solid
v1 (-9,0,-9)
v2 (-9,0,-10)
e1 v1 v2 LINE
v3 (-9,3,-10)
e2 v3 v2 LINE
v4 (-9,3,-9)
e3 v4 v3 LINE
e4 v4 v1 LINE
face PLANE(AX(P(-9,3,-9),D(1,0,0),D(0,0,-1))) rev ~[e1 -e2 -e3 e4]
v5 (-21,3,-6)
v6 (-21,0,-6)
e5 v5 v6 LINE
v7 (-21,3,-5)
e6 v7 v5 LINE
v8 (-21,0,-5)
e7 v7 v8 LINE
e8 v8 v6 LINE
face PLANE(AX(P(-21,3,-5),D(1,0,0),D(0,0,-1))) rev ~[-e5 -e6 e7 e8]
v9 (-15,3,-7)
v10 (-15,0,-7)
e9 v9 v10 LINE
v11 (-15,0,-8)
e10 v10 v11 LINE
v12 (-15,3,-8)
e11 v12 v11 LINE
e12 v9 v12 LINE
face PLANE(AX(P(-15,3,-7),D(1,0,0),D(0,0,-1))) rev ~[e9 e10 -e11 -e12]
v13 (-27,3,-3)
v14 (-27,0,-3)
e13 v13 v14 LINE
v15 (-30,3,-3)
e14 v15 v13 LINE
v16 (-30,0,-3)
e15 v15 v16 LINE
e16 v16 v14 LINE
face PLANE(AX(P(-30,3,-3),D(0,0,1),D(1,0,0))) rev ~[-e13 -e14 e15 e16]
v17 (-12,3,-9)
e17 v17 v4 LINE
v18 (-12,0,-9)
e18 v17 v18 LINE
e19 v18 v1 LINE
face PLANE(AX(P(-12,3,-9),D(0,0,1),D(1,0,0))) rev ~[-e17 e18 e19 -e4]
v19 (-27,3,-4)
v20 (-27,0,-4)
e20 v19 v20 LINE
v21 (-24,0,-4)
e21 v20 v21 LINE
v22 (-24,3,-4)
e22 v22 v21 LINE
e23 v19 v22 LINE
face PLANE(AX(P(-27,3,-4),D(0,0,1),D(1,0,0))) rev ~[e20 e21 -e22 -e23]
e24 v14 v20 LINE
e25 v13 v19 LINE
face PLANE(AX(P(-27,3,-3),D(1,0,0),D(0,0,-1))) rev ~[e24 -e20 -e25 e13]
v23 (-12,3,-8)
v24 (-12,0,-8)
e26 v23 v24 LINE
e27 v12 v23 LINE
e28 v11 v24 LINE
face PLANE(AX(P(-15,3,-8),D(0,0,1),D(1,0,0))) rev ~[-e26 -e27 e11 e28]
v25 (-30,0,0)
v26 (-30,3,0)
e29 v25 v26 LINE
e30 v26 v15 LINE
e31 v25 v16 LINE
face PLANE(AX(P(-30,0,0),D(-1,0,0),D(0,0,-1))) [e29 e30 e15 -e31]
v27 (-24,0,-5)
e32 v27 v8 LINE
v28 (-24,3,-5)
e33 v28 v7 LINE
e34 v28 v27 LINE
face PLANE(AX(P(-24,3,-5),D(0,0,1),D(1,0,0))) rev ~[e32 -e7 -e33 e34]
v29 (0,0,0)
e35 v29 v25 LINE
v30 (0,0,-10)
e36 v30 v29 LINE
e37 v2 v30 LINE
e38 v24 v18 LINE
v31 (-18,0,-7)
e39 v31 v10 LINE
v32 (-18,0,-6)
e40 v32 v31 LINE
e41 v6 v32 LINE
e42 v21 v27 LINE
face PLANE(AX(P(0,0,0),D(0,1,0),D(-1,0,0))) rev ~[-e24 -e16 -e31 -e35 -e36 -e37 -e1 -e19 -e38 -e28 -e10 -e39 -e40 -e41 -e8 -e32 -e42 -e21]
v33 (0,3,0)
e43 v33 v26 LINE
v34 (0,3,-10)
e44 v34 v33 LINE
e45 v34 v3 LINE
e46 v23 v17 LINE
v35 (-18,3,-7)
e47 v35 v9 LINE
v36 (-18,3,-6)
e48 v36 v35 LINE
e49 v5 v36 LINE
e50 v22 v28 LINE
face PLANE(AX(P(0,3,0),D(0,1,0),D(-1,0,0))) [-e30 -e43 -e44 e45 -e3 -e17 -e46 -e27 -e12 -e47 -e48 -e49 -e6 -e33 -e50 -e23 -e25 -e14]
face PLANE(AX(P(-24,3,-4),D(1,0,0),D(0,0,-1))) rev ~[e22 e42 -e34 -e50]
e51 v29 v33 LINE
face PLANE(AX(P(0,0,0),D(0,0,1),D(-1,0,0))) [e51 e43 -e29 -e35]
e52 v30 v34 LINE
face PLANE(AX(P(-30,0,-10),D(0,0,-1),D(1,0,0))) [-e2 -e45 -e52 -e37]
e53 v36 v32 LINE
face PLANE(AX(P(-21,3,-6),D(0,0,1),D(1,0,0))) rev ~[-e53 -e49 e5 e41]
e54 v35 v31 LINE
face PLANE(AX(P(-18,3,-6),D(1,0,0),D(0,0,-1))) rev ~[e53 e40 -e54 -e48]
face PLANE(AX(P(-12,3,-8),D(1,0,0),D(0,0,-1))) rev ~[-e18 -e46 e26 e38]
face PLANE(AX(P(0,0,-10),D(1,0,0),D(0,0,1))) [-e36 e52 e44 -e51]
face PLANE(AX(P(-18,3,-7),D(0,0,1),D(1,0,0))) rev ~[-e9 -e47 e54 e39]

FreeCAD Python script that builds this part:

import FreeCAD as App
import Part
import Sketcher
from FreeCAD import Vector
Q = App.Units.Quantity

doc = App.newDocument("Part")
params = doc.addObject("Spreadsheet::Sheet", "Params")
for row, (alias, value) in enumerate([
    ("sketch1_width", "30 mm"),
    ("sketch1_height", "10 mm"),
    ("pad1_length", "3 mm"),
    ("sketch2_width", "3 mm"),
    ("sketch2_height", "1 mm"),
    ("sketch2_height2", "10 mm"),
], start=1):
    params.set(f"A{row}", alias)
    params.set(f"B{row}", "=" + value)
    params.setAlias(f"B{row}", alias)

body = doc.addObject("PartDesign::Body", "Body")

# Sketch on XZ plane
sketch1 = body.newObject("Sketcher::SketchObject", "Sketch")
sketch1.AttachmentSupport = (doc.getObject("XZ_Plane"), [""])
sketch1.MapMode = "FlatFace"
sketch1.addGeometry(Part.LineSegment(Vector(-30, 0, 0), Vector(0, 0, 0)), False)
sketch1.addGeometry(Part.LineSegment(Vector(0, 0, 0), Vector(0, -10, 0)), False)
sketch1.addGeometry(Part.LineSegment(Vector(0, -10, 0), Vector(-30, -10, 0)), False)
sketch1.addGeometry(Part.LineSegment(Vector(-30, -10, 0), Vector(-30, 0, 0)), False)
sketch1.addConstraint(Sketcher.Constraint("Coincident", 0, 2, 1, 1))
sketch1.addConstraint(Sketcher.Constraint("Coincident", 1, 2, 2, 1))
sketch1.addConstraint(Sketcher.Constraint("Coincident", 2, 2, 3, 1))
sketch1.addConstraint(Sketcher.Constraint("Coincident", 3, 2, 0, 1))
sketch1.addConstraint(Sketcher.Constraint("Horizontal", 0))
sketch1.addConstraint(Sketcher.Constraint("Vertical", 1))
sketch1.addConstraint(Sketcher.Constraint("Horizontal", 2))
sketch1.addConstraint(Sketcher.Constraint("Vertical", 3))
sketch1.addConstraint(Sketcher.Constraint("Coincident", 0, 2, -1, 1))
sketch1.addConstraint(Sketcher.Constraint("DistanceX", 0, 1, 0, 2, Q("30 mm")))
sketch1.addConstraint(Sketcher.Constraint("DistanceY", 1, 2, 1, 1, Q("10 mm")))
sketch1.setExpression("Constraints[9]", "Params.sketch1_width")
sketch1.setExpression("Constraints[10]", "Params.sketch1_height")
pad1 = body.newObject("PartDesign::Pad", "Pad")
pad1.Profile = sketch1
pad1.setExpression("Length", "Params.pad1_length")
pad1.Reversed = True

# Sketch on XZ plane
sketch2 = body.newObject("Sketcher::SketchObject", "Sketch001")
sketch2.AttachmentSupport = (doc.getObject("XZ_Plane"), [""])
sketch2.MapMode = "FlatFace"
sketch2.AttachmentOffset = App.Placement(Vector(0, 0, -3), App.Rotation())
sketch2.addGeometry(Part.LineSegment(Vector(-30, -20, 0), Vector(-30, -3, 0)), False)
sketch2.addGeometry(Part.LineSegment(Vector(-30, -3, 0), Vector(-27, -3, 0)), False)
sketch2.addGeometry(Part.LineSegment(Vector(-27, -3, 0), Vector(-27, -4, 0)), False)
sketch2.addGeometry(Part.LineSegment(Vector(-27, -4, 0), Vector(-24, -4, 0)), False)
sketch2.addGeometry(Part.LineSegment(Vector(-24, -4, 0), Vector(-24, -5, 0)), False)
sketch2.addGeometry(Part.LineSegment(Vector(-24, -5, 0), Vector(-21, -5, 0)), False)
sketch2.addGeometry(Part.LineSegment(Vector(-21, -5, 0), Vector(-21, -6, 0)), False)
sketch2.addGeometry(Part.LineSegment(Vector(-21, -6, 0), Vector(-18, -6, 0)), False)
sketch2.addGeometry(Part.LineSegment(Vector(-18, -6, 0), Vector(-18, -7, 0)), False)
sketch2.addGeometry(Part.LineSegment(Vector(-18, -7, 0), Vector(-15, -7, 0)), False)
sketch2.addGeometry(Part.LineSegment(Vector(-15, -7, 0), Vector(-15, -8, 0)), False)
sketch2.addGeometry(Part.LineSegment(Vector(-15, -8, 0), Vector(-12, -8, 0)), False)
sketch2.addGeometry(Part.LineSegment(Vector(-12, -8, 0), Vector(-12, -9, 0)), False)
sketch2.addGeometry(Part.LineSegment(Vector(-12, -9, 0), Vector(-9, -9, 0)), False)
sketch2.addGeometry(Part.LineSegment(Vector(-9, -9, 0), Vector(-9, -10, 0)), False)
sketch2.addGeometry(Part.LineSegment(Vector(-9, -10, 0), Vector(-1.6, -10, 0)), False)
sketch2.addGeometry(Part.LineSegment(Vector(-1.6, -10, 0), Vector(-1.6, -20, 0)), False)
sketch2.addGeometry(Part.LineSegment(Vector(-1.6, -20, 0), Vector(-30, -20, 0)), False)
sketch2.addConstraint(Sketcher.Constraint("Coincident", 0, 2, 1, 1))
sketch2.addConstraint(Sketcher.Constraint("Coincident", 1, 2, 2, 1))
sketch2.addConstraint(Sketcher.Constraint("Coincident", 2, 2, 3, 1))
sketch2.addConstraint(Sketcher.Constraint("Coincident", 3, 2, 4, 1))
sketch2.addConstraint(Sketcher.Constraint("Coincident", 4, 2, 5, 1))
sketch2.addConstraint(Sketcher.Constraint("Coincident", 5, 2, 6, 1))
sketch2.addConstraint(Sketcher.Constraint("Coincident", 6, 2, 7, 1))
sketch2.addConstraint(Sketcher.Constraint("Coincident", 7, 2, 8, 1))
sketch2.addConstraint(Sketcher.Constraint("Coincident", 8, 2, 9, 1))
sketch2.addConstraint(Sketcher.Constraint("Coincident", 9, 2, 10, 1))
sketch2.addConstraint(Sketcher.Constraint("Coincident", 10, 2, 11, 1))
sketch2.addConstraint(Sketcher.Constraint("Coincident", 11, 2, 12, 1))
sketch2.addConstraint(Sketcher.Constraint("Coincident", 12, 2, 13, 1))
sketch2.addConstraint(Sketcher.Constraint("Coincident", 13, 2, 14, 1))
sketch2.addConstraint(Sketcher.Constraint("Coincident", 14, 2, 15, 1))
sketch2.addConstraint(Sketcher.Constraint("Coincident", 15, 2, 16, 1))
sketch2.addConstraint(Sketcher.Constraint("Coincident", 16, 2, 17, 1))
sketch2.addConstraint(Sketcher.Constraint("Coincident", 17, 2, 0, 1))
sketch2.addConstraint(Sketcher.Constraint("Vertical", 0))
sketch2.addConstraint(Sketcher.Constraint("Horizontal", 1))
sketch2.addConstraint(Sketcher.Constraint("Vertical", 2))
sketch2.addConstraint(Sketcher.Constraint("Horizontal", 3))
sketch2.addConstraint(Sketcher.Constraint("Vertical", 4))
sketch2.addConstraint(Sketcher.Constraint("Horizontal", 5))
sketch2.addConstraint(Sketcher.Constraint("Vertical", 6))
sketch2.addConstraint(Sketcher.Constraint("Horizontal", 7))
sketch2.addConstraint(Sketcher.Constraint("Vertical", 8))
sketch2.addConstraint(Sketcher.Constraint("Horizontal", 9))
sketch2.addConstraint(Sketcher.Constraint("Vertical", 10))
sketch2.addConstraint(Sketcher.Constraint("Horizontal", 11))
sketch2.addConstraint(Sketcher.Constraint("Vertical", 12))
sketch2.addConstraint(Sketcher.Constraint("Horizontal", 13))
sketch2.addConstraint(Sketcher.Constraint("Vertical", 14))
sketch2.addConstraint(Sketcher.Constraint("Horizontal", 15))
sketch2.addConstraint(Sketcher.Constraint("Vertical", 16))
sketch2.addConstraint(Sketcher.Constraint("Horizontal", 17))
sketch2.addConstraint(Sketcher.Constraint("Equal", 1, 3))
sketch2.addConstraint(Sketcher.Constraint("Equal", 3, 5))
sketch2.addConstraint(Sketcher.Constraint("Equal", 5, 7))
sketch2.addConstraint(Sketcher.Constraint("Equal", 7, 9))
sketch2.addConstraint(Sketcher.Constraint("Equal", 9, 11))
sketch2.addConstraint(Sketcher.Constraint("Equal", 11, 13))
sketch2.addConstraint(Sketcher.Constraint("Equal", 2, 4))
sketch2.addConstraint(Sketcher.Constraint("Equal", 4, 6))
sketch2.addConstraint(Sketcher.Constraint("Equal", 6, 8))
sketch2.addConstraint(Sketcher.Constraint("Equal", 8, 10))
sketch2.addConstraint(Sketcher.Constraint("Equal", 10, 12))
sketch2.addConstraint(Sketcher.Constraint("Equal", 12, 14))
sketch2.addConstraint(Sketcher.Constraint("DistanceX", 1, 1, 1, 2, Q("3 mm")))
sketch2.addConstraint(Sketcher.Constraint("DistanceY", 2, 2, 2, 1, Q("1 mm")))
sketch2.addConstraint(Sketcher.Constraint("DistanceY", 16, 2, 16, 1, Q("10 mm")))
sketch2.addConstraint(Sketcher.Constraint("DistanceY", 0, 2, -1, 1, Q("3 mm")))
sketch2.addConstraint(Sketcher.Constraint("DistanceX", 17, 2, 17, 1, Q("28.447 mm")))
sketch2.addConstraint(Sketcher.Constraint("DistanceX", 0, 2, -1, 1, Q("30 mm")))
sketch2.setExpression("Constraints[48]", "Params.sketch2_width")
sketch2.setExpression("Constraints[49]", "Params.sketch2_height")
sketch2.setExpression("Constraints[50]", "Params.sketch2_height2")
pocket1 = body.newObject("PartDesign::Pocket", "Pocket")
pocket1.Profile = sketch2
pocket1.Type = "ThroughAll"
pocket1.Reversed = True

doc.recompute()
